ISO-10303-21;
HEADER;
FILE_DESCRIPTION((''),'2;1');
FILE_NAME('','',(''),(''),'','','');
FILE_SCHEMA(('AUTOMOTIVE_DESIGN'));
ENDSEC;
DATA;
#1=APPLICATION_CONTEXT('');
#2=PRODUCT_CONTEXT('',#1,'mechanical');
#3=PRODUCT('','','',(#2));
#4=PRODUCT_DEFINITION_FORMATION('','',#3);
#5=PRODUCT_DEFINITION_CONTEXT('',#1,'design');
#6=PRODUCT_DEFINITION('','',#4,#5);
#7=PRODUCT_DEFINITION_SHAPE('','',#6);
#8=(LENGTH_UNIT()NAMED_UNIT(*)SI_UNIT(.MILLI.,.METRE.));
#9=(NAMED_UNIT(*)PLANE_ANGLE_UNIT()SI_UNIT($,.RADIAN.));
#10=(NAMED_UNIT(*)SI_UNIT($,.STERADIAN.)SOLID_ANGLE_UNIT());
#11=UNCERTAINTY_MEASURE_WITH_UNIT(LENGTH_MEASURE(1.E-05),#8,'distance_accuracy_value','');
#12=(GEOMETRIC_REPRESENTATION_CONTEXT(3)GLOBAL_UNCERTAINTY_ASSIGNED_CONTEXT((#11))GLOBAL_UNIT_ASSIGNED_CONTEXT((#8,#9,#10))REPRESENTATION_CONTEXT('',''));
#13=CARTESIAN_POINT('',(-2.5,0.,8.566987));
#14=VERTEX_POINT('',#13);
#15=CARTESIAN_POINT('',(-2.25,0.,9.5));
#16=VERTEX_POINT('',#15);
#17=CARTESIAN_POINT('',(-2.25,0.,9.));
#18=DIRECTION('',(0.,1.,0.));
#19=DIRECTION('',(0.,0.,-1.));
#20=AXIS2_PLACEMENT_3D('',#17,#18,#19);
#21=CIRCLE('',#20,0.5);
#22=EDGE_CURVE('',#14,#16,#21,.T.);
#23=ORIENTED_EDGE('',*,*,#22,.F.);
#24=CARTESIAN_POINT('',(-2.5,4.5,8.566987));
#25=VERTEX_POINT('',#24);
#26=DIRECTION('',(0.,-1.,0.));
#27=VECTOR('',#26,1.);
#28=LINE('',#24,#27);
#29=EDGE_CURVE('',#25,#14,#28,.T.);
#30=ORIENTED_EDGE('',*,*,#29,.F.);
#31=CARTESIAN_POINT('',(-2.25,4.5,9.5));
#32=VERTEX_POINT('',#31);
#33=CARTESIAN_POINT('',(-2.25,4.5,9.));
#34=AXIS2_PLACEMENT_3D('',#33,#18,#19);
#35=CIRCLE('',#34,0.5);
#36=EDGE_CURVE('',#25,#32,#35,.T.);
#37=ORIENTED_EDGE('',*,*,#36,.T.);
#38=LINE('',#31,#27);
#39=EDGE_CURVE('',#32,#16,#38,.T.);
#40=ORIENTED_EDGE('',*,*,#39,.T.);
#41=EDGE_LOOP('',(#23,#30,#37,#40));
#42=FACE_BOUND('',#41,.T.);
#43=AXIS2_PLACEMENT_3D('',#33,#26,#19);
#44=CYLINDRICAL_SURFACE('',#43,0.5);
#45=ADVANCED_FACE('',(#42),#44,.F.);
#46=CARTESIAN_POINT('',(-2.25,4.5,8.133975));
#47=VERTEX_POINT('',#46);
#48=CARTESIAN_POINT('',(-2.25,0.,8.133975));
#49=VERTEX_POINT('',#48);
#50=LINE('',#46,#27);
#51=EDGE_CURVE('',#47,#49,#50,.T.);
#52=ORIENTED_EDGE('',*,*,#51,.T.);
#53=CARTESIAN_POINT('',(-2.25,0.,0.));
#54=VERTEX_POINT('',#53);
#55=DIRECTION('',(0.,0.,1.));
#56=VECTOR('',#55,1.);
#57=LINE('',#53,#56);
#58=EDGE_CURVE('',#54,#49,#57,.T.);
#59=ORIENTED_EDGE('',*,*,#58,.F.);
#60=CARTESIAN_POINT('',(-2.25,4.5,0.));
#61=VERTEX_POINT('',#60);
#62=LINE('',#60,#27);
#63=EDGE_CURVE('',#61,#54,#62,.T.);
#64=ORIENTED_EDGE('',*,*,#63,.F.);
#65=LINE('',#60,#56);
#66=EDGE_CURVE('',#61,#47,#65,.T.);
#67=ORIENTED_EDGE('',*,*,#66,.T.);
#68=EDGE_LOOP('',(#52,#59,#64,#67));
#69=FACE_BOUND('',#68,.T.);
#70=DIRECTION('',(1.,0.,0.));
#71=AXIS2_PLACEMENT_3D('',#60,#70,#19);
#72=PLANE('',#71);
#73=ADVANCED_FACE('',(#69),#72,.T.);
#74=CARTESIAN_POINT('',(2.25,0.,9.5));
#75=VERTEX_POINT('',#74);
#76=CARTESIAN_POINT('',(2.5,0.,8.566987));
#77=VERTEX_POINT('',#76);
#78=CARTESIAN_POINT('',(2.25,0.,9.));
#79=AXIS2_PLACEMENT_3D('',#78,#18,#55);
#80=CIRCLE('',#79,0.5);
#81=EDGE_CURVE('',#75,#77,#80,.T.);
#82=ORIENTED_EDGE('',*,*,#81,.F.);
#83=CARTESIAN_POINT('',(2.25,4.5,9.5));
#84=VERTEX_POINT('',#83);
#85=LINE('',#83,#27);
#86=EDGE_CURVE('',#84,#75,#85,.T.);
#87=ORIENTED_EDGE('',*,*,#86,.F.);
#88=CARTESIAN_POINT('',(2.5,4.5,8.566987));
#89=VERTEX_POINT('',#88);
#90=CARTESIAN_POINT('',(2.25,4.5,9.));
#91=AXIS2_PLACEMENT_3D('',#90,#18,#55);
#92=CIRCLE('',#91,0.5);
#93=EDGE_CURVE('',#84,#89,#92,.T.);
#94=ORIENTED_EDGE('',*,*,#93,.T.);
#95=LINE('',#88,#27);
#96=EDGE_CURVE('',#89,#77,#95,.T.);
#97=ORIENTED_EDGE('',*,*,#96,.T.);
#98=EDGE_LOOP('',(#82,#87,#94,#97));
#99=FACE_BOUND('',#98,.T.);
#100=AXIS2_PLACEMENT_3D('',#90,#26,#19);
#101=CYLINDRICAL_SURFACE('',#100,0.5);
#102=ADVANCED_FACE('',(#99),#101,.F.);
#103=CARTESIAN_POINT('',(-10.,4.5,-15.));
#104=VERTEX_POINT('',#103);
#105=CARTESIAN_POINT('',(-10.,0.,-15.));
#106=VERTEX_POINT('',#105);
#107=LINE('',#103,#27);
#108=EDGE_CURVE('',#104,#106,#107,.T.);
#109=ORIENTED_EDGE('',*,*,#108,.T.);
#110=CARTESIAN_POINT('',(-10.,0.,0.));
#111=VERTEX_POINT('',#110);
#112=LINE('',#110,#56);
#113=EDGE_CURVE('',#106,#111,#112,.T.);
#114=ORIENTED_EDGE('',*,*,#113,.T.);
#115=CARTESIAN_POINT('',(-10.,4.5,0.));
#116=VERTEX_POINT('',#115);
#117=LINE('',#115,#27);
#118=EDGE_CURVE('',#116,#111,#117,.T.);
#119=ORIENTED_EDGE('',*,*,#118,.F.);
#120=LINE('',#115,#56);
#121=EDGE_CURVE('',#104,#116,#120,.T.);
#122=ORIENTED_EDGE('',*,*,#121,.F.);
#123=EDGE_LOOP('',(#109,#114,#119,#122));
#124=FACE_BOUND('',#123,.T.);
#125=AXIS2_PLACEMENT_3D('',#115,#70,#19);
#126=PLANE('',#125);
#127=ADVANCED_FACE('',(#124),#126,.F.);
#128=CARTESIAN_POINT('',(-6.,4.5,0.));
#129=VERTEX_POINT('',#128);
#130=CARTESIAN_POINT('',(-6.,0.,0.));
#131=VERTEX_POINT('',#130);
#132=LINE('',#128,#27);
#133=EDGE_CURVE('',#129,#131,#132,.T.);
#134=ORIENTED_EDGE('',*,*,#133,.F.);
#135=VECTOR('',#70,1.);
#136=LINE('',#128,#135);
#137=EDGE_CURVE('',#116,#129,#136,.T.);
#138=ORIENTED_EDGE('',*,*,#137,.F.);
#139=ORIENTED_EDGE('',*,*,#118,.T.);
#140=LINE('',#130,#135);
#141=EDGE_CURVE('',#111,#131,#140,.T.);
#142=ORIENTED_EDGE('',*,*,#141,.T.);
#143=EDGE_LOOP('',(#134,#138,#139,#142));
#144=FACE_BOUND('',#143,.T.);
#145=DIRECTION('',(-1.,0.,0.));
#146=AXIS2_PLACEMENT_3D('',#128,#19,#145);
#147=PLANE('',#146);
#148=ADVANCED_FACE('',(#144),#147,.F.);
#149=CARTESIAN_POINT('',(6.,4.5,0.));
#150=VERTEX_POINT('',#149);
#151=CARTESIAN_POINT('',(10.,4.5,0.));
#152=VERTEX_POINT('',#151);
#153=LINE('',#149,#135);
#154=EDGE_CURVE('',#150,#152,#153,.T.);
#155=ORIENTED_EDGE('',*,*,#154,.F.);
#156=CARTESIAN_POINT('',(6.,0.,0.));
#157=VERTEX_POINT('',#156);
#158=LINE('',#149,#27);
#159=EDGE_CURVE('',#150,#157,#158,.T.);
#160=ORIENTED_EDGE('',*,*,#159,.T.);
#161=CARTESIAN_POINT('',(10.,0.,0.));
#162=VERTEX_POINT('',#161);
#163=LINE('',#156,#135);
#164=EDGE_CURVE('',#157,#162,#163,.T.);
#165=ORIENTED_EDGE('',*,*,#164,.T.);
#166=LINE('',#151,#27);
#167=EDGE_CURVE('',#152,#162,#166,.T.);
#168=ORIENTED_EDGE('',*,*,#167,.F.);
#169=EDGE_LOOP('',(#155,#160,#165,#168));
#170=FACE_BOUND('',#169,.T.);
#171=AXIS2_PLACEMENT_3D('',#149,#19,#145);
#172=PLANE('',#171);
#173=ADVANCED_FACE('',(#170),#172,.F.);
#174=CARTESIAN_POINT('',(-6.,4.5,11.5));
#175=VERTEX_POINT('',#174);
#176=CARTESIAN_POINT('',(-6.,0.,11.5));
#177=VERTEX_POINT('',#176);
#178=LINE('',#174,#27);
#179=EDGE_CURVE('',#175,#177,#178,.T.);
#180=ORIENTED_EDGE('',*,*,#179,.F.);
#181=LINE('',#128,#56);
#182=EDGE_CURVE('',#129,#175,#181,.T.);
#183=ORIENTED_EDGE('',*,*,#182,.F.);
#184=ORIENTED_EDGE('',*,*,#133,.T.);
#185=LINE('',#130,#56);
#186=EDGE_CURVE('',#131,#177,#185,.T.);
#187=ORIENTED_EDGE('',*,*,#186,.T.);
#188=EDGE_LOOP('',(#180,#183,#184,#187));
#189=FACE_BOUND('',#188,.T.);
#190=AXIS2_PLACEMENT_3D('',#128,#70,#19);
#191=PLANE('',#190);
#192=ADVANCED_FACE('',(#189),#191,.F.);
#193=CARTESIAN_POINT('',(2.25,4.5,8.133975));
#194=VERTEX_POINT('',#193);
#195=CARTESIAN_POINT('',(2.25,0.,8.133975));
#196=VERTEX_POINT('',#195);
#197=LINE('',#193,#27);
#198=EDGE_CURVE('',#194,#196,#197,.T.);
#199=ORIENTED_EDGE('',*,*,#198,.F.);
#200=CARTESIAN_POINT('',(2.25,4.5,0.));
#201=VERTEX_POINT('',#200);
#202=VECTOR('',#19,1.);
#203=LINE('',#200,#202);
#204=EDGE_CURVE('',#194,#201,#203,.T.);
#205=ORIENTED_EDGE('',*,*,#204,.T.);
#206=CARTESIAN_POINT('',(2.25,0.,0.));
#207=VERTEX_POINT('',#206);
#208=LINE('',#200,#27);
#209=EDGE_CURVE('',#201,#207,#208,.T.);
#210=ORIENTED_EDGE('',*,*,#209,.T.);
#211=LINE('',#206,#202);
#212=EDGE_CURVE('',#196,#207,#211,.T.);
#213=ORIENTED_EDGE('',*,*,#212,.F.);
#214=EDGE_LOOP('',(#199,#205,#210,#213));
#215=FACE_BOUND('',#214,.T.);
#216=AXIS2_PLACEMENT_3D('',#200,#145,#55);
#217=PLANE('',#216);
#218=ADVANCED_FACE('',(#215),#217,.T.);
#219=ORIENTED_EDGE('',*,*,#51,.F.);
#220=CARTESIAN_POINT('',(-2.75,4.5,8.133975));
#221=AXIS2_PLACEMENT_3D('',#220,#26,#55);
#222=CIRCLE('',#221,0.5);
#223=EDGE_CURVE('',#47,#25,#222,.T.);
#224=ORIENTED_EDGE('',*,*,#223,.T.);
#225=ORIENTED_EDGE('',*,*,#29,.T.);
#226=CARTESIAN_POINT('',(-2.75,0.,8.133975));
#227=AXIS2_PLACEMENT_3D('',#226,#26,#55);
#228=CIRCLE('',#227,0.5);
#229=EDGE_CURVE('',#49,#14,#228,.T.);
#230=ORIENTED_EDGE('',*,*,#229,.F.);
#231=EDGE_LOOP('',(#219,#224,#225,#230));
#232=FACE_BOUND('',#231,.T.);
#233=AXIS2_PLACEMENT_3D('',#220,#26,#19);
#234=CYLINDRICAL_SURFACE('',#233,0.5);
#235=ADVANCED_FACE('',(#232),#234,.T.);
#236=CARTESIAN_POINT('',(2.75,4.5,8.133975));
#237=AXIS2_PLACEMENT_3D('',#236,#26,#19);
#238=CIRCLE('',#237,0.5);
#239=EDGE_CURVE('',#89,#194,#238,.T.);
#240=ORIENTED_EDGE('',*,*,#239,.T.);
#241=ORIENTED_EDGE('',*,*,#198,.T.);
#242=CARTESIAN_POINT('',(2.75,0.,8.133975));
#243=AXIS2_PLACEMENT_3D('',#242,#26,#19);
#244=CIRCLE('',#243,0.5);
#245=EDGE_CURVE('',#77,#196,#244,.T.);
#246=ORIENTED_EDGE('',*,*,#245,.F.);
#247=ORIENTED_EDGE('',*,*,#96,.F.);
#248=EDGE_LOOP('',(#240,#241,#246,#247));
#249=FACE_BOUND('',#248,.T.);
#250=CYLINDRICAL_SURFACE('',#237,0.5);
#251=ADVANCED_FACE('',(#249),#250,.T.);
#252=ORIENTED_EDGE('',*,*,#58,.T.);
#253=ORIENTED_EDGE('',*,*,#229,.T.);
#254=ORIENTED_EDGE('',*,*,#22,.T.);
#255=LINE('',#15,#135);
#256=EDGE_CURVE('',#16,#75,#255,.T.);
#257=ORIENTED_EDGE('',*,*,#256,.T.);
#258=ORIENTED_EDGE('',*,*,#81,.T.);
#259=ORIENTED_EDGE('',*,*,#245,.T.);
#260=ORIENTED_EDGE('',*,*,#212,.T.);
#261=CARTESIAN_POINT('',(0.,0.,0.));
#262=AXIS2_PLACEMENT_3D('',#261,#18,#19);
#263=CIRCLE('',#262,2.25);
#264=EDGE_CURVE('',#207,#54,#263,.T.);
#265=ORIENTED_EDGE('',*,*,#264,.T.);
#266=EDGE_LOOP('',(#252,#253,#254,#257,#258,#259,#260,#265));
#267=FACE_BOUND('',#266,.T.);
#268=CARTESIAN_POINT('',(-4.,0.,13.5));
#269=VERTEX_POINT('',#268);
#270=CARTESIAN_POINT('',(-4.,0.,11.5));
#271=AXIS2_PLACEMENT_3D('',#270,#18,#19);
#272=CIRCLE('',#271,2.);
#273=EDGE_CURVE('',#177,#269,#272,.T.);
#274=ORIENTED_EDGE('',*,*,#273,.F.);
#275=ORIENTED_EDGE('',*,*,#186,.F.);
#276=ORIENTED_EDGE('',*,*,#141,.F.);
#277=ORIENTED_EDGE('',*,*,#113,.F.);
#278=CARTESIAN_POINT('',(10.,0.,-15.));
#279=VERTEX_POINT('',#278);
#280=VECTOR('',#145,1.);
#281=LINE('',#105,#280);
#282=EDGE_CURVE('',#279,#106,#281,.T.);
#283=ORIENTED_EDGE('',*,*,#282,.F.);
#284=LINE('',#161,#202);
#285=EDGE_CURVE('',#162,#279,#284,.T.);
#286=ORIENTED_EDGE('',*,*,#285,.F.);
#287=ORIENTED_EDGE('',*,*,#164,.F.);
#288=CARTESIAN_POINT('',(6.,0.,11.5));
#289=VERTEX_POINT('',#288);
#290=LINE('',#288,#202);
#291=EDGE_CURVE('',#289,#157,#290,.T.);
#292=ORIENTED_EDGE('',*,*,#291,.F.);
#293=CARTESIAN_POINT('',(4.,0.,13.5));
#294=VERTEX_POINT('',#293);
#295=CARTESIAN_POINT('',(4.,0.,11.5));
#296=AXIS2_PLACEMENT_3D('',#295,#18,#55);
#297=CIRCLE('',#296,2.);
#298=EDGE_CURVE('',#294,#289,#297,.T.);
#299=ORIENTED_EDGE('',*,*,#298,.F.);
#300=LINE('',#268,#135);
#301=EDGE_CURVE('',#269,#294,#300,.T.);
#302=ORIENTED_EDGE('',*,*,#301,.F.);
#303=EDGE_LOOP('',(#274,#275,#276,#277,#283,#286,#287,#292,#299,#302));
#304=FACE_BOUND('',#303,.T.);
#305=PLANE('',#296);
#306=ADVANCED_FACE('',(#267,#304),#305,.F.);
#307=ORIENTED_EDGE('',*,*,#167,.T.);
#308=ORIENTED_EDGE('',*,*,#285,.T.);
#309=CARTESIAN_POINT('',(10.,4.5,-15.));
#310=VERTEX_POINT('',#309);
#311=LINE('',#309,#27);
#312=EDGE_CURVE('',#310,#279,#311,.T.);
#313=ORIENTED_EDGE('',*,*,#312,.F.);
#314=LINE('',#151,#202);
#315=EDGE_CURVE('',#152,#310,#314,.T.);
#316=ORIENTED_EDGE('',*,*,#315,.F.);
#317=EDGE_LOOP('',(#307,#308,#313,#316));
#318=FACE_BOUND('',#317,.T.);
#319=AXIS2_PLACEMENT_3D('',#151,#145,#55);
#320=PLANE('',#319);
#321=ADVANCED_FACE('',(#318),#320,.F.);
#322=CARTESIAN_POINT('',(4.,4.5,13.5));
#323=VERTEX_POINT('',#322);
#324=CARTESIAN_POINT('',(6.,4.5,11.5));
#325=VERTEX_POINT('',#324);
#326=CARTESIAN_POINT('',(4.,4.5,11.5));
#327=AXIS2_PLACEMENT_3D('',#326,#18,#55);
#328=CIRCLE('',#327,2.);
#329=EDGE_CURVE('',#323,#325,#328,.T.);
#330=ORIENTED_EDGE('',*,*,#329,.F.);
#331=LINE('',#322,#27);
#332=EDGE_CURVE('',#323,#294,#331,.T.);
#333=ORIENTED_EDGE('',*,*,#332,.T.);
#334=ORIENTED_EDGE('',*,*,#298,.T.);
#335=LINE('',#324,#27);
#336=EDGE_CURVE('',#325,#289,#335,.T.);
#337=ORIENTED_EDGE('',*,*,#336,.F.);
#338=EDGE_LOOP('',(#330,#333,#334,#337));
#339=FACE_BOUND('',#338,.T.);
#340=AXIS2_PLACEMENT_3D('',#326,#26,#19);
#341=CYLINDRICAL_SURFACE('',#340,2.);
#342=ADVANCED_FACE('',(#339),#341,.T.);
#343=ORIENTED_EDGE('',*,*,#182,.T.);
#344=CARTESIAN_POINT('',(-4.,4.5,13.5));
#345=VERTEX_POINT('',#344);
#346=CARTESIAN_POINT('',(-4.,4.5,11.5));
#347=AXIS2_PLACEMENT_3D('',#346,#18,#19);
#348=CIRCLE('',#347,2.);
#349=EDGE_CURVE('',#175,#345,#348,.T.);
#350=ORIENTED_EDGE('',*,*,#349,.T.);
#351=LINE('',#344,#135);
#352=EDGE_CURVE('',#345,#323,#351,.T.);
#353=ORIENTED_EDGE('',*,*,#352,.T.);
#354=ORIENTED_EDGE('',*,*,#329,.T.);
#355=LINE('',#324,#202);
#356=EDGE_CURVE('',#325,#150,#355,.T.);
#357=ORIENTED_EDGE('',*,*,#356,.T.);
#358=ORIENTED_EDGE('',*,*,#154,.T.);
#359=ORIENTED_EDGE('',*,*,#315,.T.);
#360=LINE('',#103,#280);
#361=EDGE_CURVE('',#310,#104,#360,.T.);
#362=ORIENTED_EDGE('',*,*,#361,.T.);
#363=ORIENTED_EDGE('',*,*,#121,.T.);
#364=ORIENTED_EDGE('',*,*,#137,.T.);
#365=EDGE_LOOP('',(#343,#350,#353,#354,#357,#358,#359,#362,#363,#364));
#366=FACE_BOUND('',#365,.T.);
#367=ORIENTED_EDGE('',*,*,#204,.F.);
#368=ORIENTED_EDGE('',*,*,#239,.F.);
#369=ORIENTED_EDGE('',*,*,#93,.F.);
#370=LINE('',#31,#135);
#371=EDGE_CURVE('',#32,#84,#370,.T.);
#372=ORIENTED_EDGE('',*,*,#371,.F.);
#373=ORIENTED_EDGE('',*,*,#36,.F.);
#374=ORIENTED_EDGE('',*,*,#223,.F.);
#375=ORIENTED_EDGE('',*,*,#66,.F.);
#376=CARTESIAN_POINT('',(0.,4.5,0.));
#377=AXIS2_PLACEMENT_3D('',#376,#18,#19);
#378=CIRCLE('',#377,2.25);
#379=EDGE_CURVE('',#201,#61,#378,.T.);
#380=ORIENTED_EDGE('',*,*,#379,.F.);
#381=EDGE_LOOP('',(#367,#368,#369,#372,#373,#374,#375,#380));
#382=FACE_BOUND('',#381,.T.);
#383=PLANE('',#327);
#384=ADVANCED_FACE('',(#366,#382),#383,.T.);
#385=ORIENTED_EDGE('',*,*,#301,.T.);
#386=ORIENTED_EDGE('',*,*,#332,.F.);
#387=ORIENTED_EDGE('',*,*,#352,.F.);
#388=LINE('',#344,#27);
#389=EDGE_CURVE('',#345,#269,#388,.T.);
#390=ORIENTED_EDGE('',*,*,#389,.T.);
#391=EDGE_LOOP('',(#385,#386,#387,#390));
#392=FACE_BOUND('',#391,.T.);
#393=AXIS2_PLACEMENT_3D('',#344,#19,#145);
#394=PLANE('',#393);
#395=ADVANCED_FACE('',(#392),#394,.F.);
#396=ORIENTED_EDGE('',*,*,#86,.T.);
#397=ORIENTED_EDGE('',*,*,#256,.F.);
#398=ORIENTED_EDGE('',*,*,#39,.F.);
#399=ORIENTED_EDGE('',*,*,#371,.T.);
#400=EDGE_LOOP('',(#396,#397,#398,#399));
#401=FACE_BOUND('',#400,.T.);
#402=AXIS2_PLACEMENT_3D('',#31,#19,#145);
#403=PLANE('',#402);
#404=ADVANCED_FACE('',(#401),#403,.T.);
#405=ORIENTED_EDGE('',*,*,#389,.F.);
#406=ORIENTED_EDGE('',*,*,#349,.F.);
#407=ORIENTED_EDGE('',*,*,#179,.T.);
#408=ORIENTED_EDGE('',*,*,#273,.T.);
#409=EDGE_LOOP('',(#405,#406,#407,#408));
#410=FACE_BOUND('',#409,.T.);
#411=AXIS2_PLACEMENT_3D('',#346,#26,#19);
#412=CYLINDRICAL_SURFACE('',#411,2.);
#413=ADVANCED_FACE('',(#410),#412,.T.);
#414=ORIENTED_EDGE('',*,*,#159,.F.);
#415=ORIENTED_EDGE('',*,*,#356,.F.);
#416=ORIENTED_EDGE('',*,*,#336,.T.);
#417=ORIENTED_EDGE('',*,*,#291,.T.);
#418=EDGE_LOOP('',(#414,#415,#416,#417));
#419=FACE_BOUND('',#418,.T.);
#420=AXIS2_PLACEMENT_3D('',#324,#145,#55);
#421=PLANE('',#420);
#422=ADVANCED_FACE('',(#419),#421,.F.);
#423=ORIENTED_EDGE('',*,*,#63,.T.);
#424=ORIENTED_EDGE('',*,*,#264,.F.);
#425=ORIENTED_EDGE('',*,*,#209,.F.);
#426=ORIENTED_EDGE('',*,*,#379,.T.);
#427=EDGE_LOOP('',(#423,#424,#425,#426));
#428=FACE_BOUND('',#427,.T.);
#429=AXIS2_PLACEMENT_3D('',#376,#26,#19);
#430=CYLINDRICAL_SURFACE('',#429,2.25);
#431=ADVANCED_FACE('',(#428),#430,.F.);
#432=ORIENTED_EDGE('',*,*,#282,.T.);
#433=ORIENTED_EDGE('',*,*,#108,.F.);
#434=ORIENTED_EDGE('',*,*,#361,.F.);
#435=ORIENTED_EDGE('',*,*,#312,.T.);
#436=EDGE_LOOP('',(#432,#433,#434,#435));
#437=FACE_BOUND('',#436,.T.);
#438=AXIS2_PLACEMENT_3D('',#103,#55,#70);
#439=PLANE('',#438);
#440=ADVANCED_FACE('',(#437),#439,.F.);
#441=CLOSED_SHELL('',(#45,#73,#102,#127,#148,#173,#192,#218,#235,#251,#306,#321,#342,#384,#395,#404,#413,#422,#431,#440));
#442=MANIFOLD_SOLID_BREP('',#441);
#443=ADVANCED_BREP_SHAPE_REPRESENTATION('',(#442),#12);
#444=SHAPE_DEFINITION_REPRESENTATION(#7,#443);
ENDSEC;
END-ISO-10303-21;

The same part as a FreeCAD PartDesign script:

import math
import FreeCAD as App
import Part
import Sketcher
Q = App.Units.Quantity

doc = App.newDocument("Part")
params = doc.addObject("Spreadsheet::Sheet", "Params")
for row, (alias, value) in enumerate([
    ("sketch1_radius", "2 mm"),
    ("sketch1_radius2", "0.5 mm"),
    ("sketch1_width", "4 mm"),
    ("sketch1_width2", "8 mm"),
    ("sketch1_height", "15 mm"),
    ("pad1_length", "4.5 mm"),
], start=1):
    params.set(f"A{row}", alias)
    params.set(f"B{row}", "=" + value)
    params.setAlias(f"B{row}", alias)

body = doc.addObject("PartDesign::Body", "Body")

# Sketch on XZ plane
sketch1 = doc.addObject("Sketcher::SketchObject", "Sketch")
body.addObject(sketch1)
sketch1.AttachmentSupport = (doc.XZ_Plane, [""])
sketch1.MapMode = "FlatFace"
sketch1.addGeometry([
    Part.LineSegment(App.Vector(-10, -15, 0), App.Vector(-10, 0, 0)),  # 0
    Part.LineSegment(App.Vector(-10, 0, 0), App.Vector(-6, 0, 0)),  # 1
    Part.LineSegment(App.Vector(-6, 0, 0), App.Vector(-6, 11.5, 0)),  # 2
    Part.ArcOfCircle(Part.Circle(App.Vector(-4, 11.5, 0), App.Vector(0, 0, 1), 2), math.radians(90), math.radians(180)),  # 3
    Part.LineSegment(App.Vector(-4, 13.5, 0), App.Vector(4, 13.5, 0)),  # 4
    Part.ArcOfCircle(Part.Circle(App.Vector(4, 11.5, 0), App.Vector(0, 0, 1), 2), math.radians(0), math.radians(90)),  # 5
    Part.LineSegment(App.Vector(6, 11.5, 0), App.Vector(6, 0, 0)),  # 6
    Part.LineSegment(App.Vector(6, 0, 0), App.Vector(10, 0, 0)),  # 7
    Part.LineSegment(App.Vector(10, 0, 0), App.Vector(10, -15, 0)),  # 8
    Part.LineSegment(App.Vector(10, -15, 0), App.Vector(-10, -15, 0)),  # 9
    Part.LineSegment(App.Vector(2.2, 0, 0), App.Vector(2.2, 8.1, 0)),  # 10
    Part.ArcOfCircle(Part.Circle(App.Vector(2.8, 8.1, 0), App.Vector(0, 0, 1), 0.5), math.radians(120), math.radians(180)),  # 11
    Part.ArcOfCircle(Part.Circle(App.Vector(2.2, 9, 0), App.Vector(0, 0, 1), 0.5), math.radians(-60), math.radians(90)),  # 12
    Part.LineSegment(App.Vector(2.2, 9.5, 0), App.Vector(-2.2, 9.5, 0)),  # 13
    Part.ArcOfCircle(Part.Circle(App.Vector(-2.2, 9, 0), App.Vector(0, 0, 1), 0.5), math.radians(90), math.radians(240)),  # 14
    Part.ArcOfCircle(Part.Circle(App.Vector(-2.8, 8.1, 0), App.Vector(0, 0, 1), 0.5), math.radians(0), math.radians(60)),  # 15
    Part.LineSegment(App.Vector(-2.2, 8.1, 0), App.Vector(-2.2, 0, 0)),  # 16
    Part.ArcOfCircle(Part.Circle(App.Vector(0, 0, 0), App.Vector(0, 0, 1), 2.2), math.radians(180), math.radians(360)),  # 17
], False)
sketch1.addConstraint([
    Sketcher.Constraint("Coincident", 0, 2, 1, 1),
    Sketcher.Constraint("Coincident", 1, 2, 2, 1),
    Sketcher.Constraint("Tangent", 2, 2, 3, 2),
    Sketcher.Constraint("Tangent", 3, 1, 4, 1),
    Sketcher.Constraint("Tangent", 4, 2, 5, 2),
    Sketcher.Constraint("Tangent", 5, 1, 6, 1),
    Sketcher.Constraint("Coincident", 6, 2, 7, 1),
    Sketcher.Constraint("Coincident", 7, 2, 8, 1),
    Sketcher.Constraint("Coincident", 8, 2, 9, 1),
    Sketcher.Constraint("Coincident", 9, 2, 0, 1),
    Sketcher.Constraint("Tangent", 10, 2, 11, 2),
    Sketcher.Constraint("Tangent", 11, 1, 12, 1),
    Sketcher.Constraint("Tangent", 12, 2, 13, 1),
    Sketcher.Constraint("Tangent", 13, 2, 14, 1),
    Sketcher.Constraint("Tangent", 14, 2, 15, 2),
    Sketcher.Constraint("Tangent", 15, 1, 16, 1),
    Sketcher.Constraint("Tangent", 16, 2, 17, 1),
    Sketcher.Constraint("Tangent", 17, 2, 10, 1),
    Sketcher.Constraint("Vertical", 0),
    Sketcher.Constraint("Horizontal", 1),
    Sketcher.Constraint("Vertical", 2),
    Sketcher.Constraint("Horizontal", 4),
    Sketcher.Constraint("Vertical", 6),
    Sketcher.Constraint("Horizontal", 7),
    Sketcher.Constraint("Vertical", 8),
    Sketcher.Constraint("Horizontal", 9),
    Sketcher.Constraint("Vertical", 10),
    Sketcher.Constraint("Horizontal", 13),
    Sketcher.Constraint("Vertical", 16),
    Sketcher.Constraint("Coincident", 17, 3, -1, 1),
    Sketcher.Constraint("Equal", 3, 5),
    Sketcher.Constraint("Equal", 11, 12),
    Sketcher.Constraint("Equal", 12, 14),
    Sketcher.Constraint("Equal", 14, 15),
    Sketcher.Constraint("Symmetric", 1, 2, 6, 2, -1, 1),
    Sketcher.Constraint("Symmetric", 0, 2, 7, 2, -2),
    Sketcher.Constraint("Horizontal", 11, 3, 15, 3),
    Sketcher.Constraint("Vertical", 12, 3, 10, 2),
    Sketcher.Constraint("Radius", 3, Q("2 mm")),
    Sketcher.Constraint("Radius", 11, Q("0.5 mm")),
    Sketcher.Constraint("DistanceX", 1, 1, 1, 2, Q("4 mm")),
    Sketcher.Constraint("DistanceX", 4, 1, 4, 2, Q("8 mm")),
    Sketcher.Constraint("DistanceY", 0, 1, 0, 2, Q("15 mm")),
    Sketcher.Constraint("Radius", 17, Q("2.25 mm")),
    Sketcher.Constraint("DistanceY", 2, 1, 2, 2, Q("11.5 mm")),
    Sketcher.Constraint("DistanceY", -1, 1, 12, 3, Q("9 mm")),
])
sketch1.setExpression("Constraints[38]", "Params.sketch1_radius")
sketch1.setExpression("Constraints[39]", "Params.sketch1_radius2")
sketch1.setExpression("Constraints[40]", "Params.sketch1_width")
sketch1.setExpression("Constraints[41]", "Params.sketch1_width2")
sketch1.setExpression("Constraints[42]", "Params.sketch1_height")
pad1 = doc.addObject("PartDesign::Pad", "Pad")
body.addObject(pad1)
pad1.Profile = sketch1
pad1.setExpression("Length", "Params.pad1_length")
pad1.Reversed = True

doc.recompute()
